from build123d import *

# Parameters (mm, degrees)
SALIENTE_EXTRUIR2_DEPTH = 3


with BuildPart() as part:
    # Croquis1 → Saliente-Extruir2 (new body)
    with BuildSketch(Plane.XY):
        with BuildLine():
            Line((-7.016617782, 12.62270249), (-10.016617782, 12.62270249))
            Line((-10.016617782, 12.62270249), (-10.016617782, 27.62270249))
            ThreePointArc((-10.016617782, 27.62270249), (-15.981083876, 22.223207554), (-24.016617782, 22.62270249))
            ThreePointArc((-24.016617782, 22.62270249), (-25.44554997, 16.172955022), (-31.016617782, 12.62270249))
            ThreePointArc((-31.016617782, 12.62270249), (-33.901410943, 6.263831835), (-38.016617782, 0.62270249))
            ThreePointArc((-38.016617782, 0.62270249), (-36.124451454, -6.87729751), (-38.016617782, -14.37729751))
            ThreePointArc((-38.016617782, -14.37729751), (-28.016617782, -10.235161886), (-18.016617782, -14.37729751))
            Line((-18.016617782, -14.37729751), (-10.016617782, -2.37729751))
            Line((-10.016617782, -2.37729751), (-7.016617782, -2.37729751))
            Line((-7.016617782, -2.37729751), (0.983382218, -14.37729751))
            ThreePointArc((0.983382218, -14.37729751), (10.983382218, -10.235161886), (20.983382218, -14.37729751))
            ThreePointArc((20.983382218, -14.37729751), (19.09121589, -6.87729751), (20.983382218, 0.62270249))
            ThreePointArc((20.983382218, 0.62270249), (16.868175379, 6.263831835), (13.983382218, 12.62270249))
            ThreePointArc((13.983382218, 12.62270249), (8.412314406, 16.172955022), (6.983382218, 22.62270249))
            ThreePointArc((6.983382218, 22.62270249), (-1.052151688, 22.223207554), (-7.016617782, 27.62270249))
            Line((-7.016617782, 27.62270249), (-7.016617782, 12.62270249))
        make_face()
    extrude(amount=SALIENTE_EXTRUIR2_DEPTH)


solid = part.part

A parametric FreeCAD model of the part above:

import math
import FreeCAD as App
import Part
import Sketcher
from FreeCAD import Vector

doc = App.newDocument("Part")
body = doc.addObject("PartDesign::Body", "Body")

sketch1 = body.newObject("Sketcher::SketchObject", "Sketch")
sketch1.AttachmentSupport = (doc.getObject("XY_Plane"), [""])
sketch1.MapMode = "FlatFace"
sketch1.addGeometry([
    Part.LineSegment(Vector(-7.016618, 12.622702, 0), Vector(-10.016618, 12.622702, 0)),
    Part.LineSegment(Vector(-10.016618, 12.622702, 0), Vector(-10.016618, 27.622702, 0)),
    Part.ArcOfCircle(Part.Circle(Vector(-19.516618, 32.122702, 0), Vector(0, 0, 1), 10.511898), math.radians(-115.346176), math.radians(-25.346176)),
    Part.ArcOfCircle(Part.Circle(Vector(-32.516618, 21.122702, 0), Vector(0, 0, 1), 8.631338), math.radians(-79.99202), math.radians(10.00798)),
    Part.ArcOfCircle(Part.Circle(Vector(-63.467467, 23.510698, 0), Vector(0, 0, 1), 34.228731), math.radians(-41.965104), math.radians(-18.54777)),
    Part.ArcOfCircle(Part.Circle(Vector(-51.93445, -6.877298, 0), Vector(0, 0, 1), 15.809998), math.radians(-28.319207), math.radians(28.319207)),
    Part.ArcOfCircle(Part.Circle(Vector(-28.016618, -24.377298, 0), Vector(0, 0, 1), 14.142136), math.radians(45), math.radians(135)),
    Part.LineSegment(Vector(-18.016618, -14.377298, 0), Vector(-10.016618, -2.377298, 0)),
    Part.LineSegment(Vector(-10.016618, -2.377298, 0), Vector(-7.016618, -2.377298, 0)),
    Part.LineSegment(Vector(-7.016618, -2.377298, 0), Vector(0.983382, -14.377298, 0)),
    Part.ArcOfCircle(Part.Circle(Vector(10.983382, -24.377298, 0), Vector(0, 0, 1), 14.142136), math.radians(45), math.radians(135)),
    Part.ArcOfCircle(Part.Circle(Vector(34.901214, -6.877298, 0), Vector(0, 0, 1), 15.809998), math.radians(151.680793), math.radians(208.319207)),
    Part.ArcOfCircle(Part.Circle(Vector(46.434231, 23.510698, 0), Vector(0, 0, 1), 34.228731), math.radians(-161.45223), math.radians(-138.034896)),
    Part.ArcOfCircle(Part.Circle(Vector(15.483382, 21.122702, 0), Vector(0, 0, 1), 8.631338), math.radians(169.99202), math.radians(259.99202)),
    Part.ArcOfCircle(Part.Circle(Vector(2.483382, 32.122702, 0), Vector(0, 0, 1), 10.511898), math.radians(-154.653824), math.radians(-64.653824)),
    Part.LineSegment(Vector(-7.016618, 27.622702, 0), Vector(-7.016618, 12.622702, 0)),
], False)
sketch1.addConstraint([
    Sketcher.Constraint("Coincident", 0, 2, 1, 1),
    Sketcher.Constraint("Coincident", 1, 2, 2, 2),
    Sketcher.Constraint("Coincident", 2, 1, 3, 2),
    Sketcher.Constraint("Coincident", 3, 1, 4, 2),
    Sketcher.Constraint("Coincident", 4, 1, 5, 2),
    Sketcher.Constraint("Coincident", 5, 1, 6, 2),
    Sketcher.Constraint("Coincident", 6, 1, 7, 1),
    Sketcher.Constraint("Coincident", 7, 2, 8, 1),
    Sketcher.Constraint("Coincident", 8, 2, 9, 1),
    Sketcher.Constraint("Coincident", 9, 2, 10, 2),
    Sketcher.Constraint("Coincident", 10, 1, 11, 2),
    Sketcher.Constraint("Coincident", 11, 1, 12, 2),
    Sketcher.Constraint("Coincident", 12, 1, 13, 2),
    Sketcher.Constraint("Coincident", 13, 1, 14, 2),
    Sketcher.Constraint("Coincident", 14, 1, 15, 1),
    Sketcher.Constraint("Coincident", 15, 2, 0, 1),
    Sketcher.Constraint("Horizontal", 0),
    Sketcher.Constraint("Vertical", 1),
    Sketcher.Constraint("Horizontal", 8),
    Sketcher.Constraint("Vertical", 15),
    Sketcher.Constraint("Equal", 6, 10),
    Sketcher.Constraint("Equal", 5, 11),
    Sketcher.Constraint("Equal", 4, 12),
    Sketcher.Constraint("Equal", 3, 13),
    Sketcher.Constraint("Equal", 2, 14),
    Sketcher.Constraint("Horizontal", 6, 3, 10, 3),
    Sketcher.Constraint("Horizontal", 5, 3, 11, 3),
    Sketcher.Constraint("Horizontal", 4, 3, 12, 3),
    Sketcher.Constraint("Horizontal", 3, 3, 13, 3),
    Sketcher.Constraint("Horizontal", 2, 3, 14, 3),
    Sketcher.Constraint("Horizontal", 0, 2, 3, 1),
    Sketcher.Constraint("Horizontal", 5, 1, 6, 1),
    Sketcher.Constraint("Horizontal", 6, 1, 9, 2),
    Sketcher.Constraint("Horizontal", 9, 2, 10, 1),
    Sketcher.Constraint("Horizontal", 4, 1, 11, 1),
    Sketcher.Constraint("Horizontal", 3, 1, 12, 1),
    Sketcher.Constraint("Horizontal", 2, 1, 13, 1),
    Sketcher.Constraint("Horizontal", 1, 2, 14, 1),
    Sketcher.Constraint("Vertical", 4, 1, 5, 1),
    Sketcher.Constraint("Vertical", 1, 2, 7, 2),
    Sketcher.Constraint("Vertical", 8, 2, 14, 1),
    Sketcher.Constraint("DistanceX", 0, 2, 0, 1, 3.0),
    Sketcher.Constraint("DistanceY", 1, 1, 1, 2, 15.0),
    Sketcher.Constraint("Radius", 5, 15.809998),
    Sketcher.Constraint("DistanceX", 3, 3, 2, 3, 13.0),
    Sketcher.Constraint("DistanceY", 3, 3, 2, 3, 11.0),
    Sketcher.Constraint("DistanceY", 5, 3, 3, 3, 28.0),
    Sketcher.Constraint("DistanceX", 6, 3, 10, 3, 39.0),
    Sketcher.Constraint("DistanceX", 2, 3, 13, 3, 35.0),
    Sketcher.Constraint("DistanceY", 6, 3, 0, 2, 37.0),
    Sketcher.Constraint("DistanceX", 2, 1, 1, 2, 14.0),
    Sketcher.Constraint("DistanceY", 2, 1, 1, 2, 5.0),
    Sketcher.Constraint("DistanceX", 4, 1, 3, 1, 7.0),
    Sketcher.Constraint("DistanceY", 4, 1, 3, 1, 12.0),
    Sketcher.Constraint("DistanceY", 6, 1, 7, 2, 12.0),
    Sketcher.Constraint("Radius", 4, 34.228731),
    Sketcher.Constraint("DistanceX", 5, 3, -1, 1, 51.93445),
    Sketcher.Constraint("DistanceY", -1, 1, 2, 3, 32.122702),
])
pad1 = body.newObject("PartDesign::Pad", "Pad")
pad1.Profile = sketch1
pad1.Length = 3

doc.recompute()
